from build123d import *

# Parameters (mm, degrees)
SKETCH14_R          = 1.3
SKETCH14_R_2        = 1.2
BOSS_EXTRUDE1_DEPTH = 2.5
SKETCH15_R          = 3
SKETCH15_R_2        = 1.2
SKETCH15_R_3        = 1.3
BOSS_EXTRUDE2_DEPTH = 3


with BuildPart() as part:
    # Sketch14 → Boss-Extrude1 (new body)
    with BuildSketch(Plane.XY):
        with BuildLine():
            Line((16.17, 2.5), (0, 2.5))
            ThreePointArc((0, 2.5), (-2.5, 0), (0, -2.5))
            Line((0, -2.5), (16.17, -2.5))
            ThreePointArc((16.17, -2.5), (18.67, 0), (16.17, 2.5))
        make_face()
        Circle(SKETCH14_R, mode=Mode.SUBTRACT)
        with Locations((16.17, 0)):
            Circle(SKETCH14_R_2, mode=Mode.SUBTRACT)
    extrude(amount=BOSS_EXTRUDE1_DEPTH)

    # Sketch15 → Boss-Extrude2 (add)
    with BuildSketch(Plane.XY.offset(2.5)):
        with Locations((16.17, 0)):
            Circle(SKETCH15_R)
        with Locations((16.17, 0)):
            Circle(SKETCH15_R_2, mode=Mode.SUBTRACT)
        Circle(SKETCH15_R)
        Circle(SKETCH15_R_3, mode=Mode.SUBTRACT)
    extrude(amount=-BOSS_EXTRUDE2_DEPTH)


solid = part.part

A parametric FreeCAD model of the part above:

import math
import FreeCAD as App
import Part
import Sketcher
Q = App.Units.Quantity

doc = App.newDocument("Part")
body = doc.addObject("PartDesign::Body", "Body")

sketch1 = body.newObject("Sketcher::SketchObject", "Sketch")
sketch1.AttachmentSupport = (doc.getObject("XY_Plane"), [""])
sketch1.MapMode = "FlatFace"
sketch1.addGeometry([
    Part.LineSegment(App.Vector(16.2, 2.5, 0), App.Vector(0, 2.5, 0)),
    Part.ArcOfCircle(Part.Circle(App.Vector(0, 0, 0), App.Vector(0, 0, 1), 2.5), math.radians(90), math.radians(270)),
    Part.LineSegment(App.Vector(0, -2.5, 0), App.Vector(16.2, -2.5, 0)),
    Part.ArcOfCircle(Part.Circle(App.Vector(16.2, 0, 0), App.Vector(0, 0, 1), 2.5), math.radians(-90), math.radians(90)),
    Part.Circle(App.Vector(0, 0, 0), App.Vector(0, 0, 1), 1.3),
    Part.Circle(App.Vector(16.2, 0, 0), App.Vector(0, 0, 1), 1.2),
], False)
sketch1.addConstraint([
    Sketcher.Constraint("Tangent", 0, 2, 1, 1),
    Sketcher.Constraint("Tangent", 1, 2, 2, 1),
    Sketcher.Constraint("Tangent", 2, 2, 3, 1),
    Sketcher.Constraint("Tangent", 3, 2, 0, 1),
    Sketcher.Constraint("Horizontal", 0),
    Sketcher.Constraint("Horizontal", 2),
    Sketcher.Constraint("Coincident", 1, 3, -1, 1),
    Sketcher.Constraint("Coincident", 4, 3, -1, 1),
    Sketcher.Constraint("Coincident", 5, 3, 3, 3),
    Sketcher.Constraint("Diameter", 4, Q("2.6 mm")),
    Sketcher.Constraint("Diameter", 5, Q("2.4 mm")),
    Sketcher.Constraint("Radius", 1, Q("2.5 mm")),
    Sketcher.Constraint("DistanceX", 0, 2, 0, 1, Q("16.17 mm")),
])
pad1 = body.newObject("PartDesign::Pad", "Pad")
pad1.Profile = sketch1
pad1.Length = 2.5

sketch2 = body.newObject("Sketcher::SketchObject", "Sketch001")
sketch2.AttachmentSupport = (doc.getObject("XY_Plane"), [""])
sketch2.MapMode = "FlatFace"
sketch2.AttachmentOffset = App.Placement(App.Vector(0, 0, 2.5), App.Rotation())
sketch2.addGeometry([
    Part.Circle(App.Vector(16.2, 0, 0), App.Vector(0, 0, 1), 3),
    Part.Circle(App.Vector(16.2, 0, 0), App.Vector(0, 0, 1), 1.2),
    Part.Circle(App.Vector(0, 0, 0), App.Vector(0, 0, 1), 3),
    Part.Circle(App.Vector(0, 0, 0), App.Vector(0, 0, 1), 1.3),
], False)
sketch2.addConstraint([
    Sketcher.Constraint("Coincident", 2, 3, -1, 1),
    Sketcher.Constraint("Coincident", 3, 3, -1, 1),
    Sketcher.Constraint("Coincident", 1, 3, 0, 3),
    Sketcher.Constraint("Equal", 0, 2),
    Sketcher.Constraint("PointOnObject", 0, 3, -1),
    Sketcher.Constraint("Diameter", 0, Q("6 mm")),
    Sketcher.Constraint("Diameter", 1, Q("2.4 mm")),
    Sketcher.Constraint("Diameter", 3, Q("2.6 mm")),
    Sketcher.Constraint("DistanceX", -1, 1, 0, 3, Q("16.17 mm")),
])
pad2 = body.newObject("PartDesign::Pad", "Pad001")
pad2.Profile = sketch2
pad2.Length = 3
pad2.Reversed = True

doc.recompute()
